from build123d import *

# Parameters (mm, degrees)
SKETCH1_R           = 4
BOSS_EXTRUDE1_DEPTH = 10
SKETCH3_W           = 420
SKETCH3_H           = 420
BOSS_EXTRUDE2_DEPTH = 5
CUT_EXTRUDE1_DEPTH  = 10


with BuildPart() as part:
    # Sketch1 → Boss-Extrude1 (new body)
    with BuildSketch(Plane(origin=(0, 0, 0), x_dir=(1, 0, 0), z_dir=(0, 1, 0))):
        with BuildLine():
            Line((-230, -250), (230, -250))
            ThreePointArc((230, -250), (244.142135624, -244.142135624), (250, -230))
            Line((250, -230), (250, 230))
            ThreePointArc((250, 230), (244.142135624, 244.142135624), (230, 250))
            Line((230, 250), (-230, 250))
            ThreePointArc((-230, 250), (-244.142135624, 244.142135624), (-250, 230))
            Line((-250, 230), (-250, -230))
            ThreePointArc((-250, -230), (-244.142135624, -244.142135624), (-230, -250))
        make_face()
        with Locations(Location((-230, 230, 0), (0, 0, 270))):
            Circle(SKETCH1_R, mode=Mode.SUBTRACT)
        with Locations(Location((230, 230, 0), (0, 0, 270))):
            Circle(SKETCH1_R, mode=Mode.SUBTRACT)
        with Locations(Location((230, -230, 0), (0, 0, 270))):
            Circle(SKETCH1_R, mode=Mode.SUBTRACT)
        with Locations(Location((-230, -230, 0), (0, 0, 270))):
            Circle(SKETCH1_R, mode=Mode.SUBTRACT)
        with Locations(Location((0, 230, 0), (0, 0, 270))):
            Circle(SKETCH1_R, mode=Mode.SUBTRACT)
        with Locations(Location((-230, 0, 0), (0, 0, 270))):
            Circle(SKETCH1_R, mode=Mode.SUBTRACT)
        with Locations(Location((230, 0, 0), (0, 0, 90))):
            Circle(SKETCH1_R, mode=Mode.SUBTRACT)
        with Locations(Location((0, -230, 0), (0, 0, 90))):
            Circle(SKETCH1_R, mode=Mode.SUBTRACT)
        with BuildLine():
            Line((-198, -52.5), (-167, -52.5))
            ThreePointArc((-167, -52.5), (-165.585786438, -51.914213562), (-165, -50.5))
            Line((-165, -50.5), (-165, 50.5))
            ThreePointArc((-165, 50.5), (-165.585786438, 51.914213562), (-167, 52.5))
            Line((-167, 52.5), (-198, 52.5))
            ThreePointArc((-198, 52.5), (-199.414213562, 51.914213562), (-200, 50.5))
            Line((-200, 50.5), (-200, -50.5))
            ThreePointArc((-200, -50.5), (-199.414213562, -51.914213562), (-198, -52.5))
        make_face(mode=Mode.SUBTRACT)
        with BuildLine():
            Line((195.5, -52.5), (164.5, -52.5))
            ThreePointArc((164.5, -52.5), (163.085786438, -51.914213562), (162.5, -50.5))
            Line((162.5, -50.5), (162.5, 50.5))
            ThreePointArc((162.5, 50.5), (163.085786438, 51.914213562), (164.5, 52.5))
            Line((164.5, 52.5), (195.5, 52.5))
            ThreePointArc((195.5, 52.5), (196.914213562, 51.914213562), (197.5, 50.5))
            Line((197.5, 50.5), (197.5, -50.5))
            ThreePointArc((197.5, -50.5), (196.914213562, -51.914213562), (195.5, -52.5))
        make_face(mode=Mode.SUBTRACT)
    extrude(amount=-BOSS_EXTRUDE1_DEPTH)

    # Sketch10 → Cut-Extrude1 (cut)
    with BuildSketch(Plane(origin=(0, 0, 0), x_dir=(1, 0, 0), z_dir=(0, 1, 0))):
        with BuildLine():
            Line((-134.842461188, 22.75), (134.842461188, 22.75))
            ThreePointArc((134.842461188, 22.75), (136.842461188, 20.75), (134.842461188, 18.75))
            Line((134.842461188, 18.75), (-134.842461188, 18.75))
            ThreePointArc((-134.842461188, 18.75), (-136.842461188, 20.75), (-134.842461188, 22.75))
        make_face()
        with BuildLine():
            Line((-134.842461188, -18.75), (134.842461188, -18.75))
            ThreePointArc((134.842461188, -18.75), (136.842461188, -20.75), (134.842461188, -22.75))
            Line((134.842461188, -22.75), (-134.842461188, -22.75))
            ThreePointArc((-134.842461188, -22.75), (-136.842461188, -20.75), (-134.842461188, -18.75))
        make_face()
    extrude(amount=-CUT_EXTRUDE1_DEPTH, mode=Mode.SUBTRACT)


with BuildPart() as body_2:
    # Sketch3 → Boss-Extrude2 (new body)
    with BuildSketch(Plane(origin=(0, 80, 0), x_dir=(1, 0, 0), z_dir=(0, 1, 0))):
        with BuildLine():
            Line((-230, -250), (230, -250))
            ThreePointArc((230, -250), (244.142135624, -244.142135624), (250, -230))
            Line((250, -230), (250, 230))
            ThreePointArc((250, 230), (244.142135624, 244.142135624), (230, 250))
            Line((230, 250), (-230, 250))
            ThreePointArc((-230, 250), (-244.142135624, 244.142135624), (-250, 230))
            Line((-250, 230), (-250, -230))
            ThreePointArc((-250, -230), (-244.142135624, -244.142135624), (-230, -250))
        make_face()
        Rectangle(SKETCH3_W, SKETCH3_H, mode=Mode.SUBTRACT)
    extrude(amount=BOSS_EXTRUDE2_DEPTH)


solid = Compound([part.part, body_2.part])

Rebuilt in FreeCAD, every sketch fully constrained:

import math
import FreeCAD as App
import Part
import Sketcher

V = App.Vector


def add_polygon(sketch, points):
    """Adds a closed chain of lines whose ends are joined by coincident constraints."""
    first, n = sketch.GeometryCount, len(points)
    for a, b in zip(points, points[1:] + points[:1]):
        sketch.addGeometry(Part.LineSegment(App.Vector(*a, 0), App.Vector(*b, 0)), False)
    for i in range(n):
        sketch.addConstraint(Sketcher.Constraint("Coincident", first + i, 2, first + (i + 1) % n, 1))

doc = App.newDocument("Part")
body = doc.addObject("PartDesign::Body", "Body")

sketch1 = body.newObject("Sketcher::SketchObject", "Sketch")
sketch1.AttachmentSupport = (doc.getObject("XZ_Plane"), [""])
sketch1.MapMode = "FlatFace"
sketch1.addGeometry([
    Part.LineSegment(V(-230, 250, 0), V(230, 250, 0)),
    Part.ArcOfCircle(Part.Circle(V(230, 230, 0), V(0, 0, 1), 20), math.radians(0), math.radians(90)),
    Part.LineSegment(V(250, 230, 0), V(250, -230, 0)),
    Part.ArcOfCircle(Part.Circle(V(230, -230, 0), V(0, 0, 1), 20), math.radians(-90), math.radians(0)),
    Part.LineSegment(V(230, -250, 0), V(-230, -250, 0)),
    Part.ArcOfCircle(Part.Circle(V(-230, -230, 0), V(0, 0, 1), 20), math.radians(180), math.radians(270)),
    Part.LineSegment(V(-250, -230, 0), V(-250, 230, 0)),
    Part.ArcOfCircle(Part.Circle(V(-230, 230, 0), V(0, 0, 1), 20), math.radians(90), math.radians(180)),
    Part.Circle(V(-230, 230, 0), V(0, 0, 1), 4),
    Part.Circle(V(0, 230, 0), V(0, 0, 1), 4),
    Part.Circle(V(230, 230, 0), V(0, 0, 1), 4),
    Part.Circle(V(-230, 0, 0), V(0, 0, 1), 4),
    Part.LineSegment(V(-167, 52.5, 0), V(-198, 52.5, 0)),
    Part.ArcOfCircle(Part.Circle(V(-198, 50.5, 0), V(0, 0, 1), 2), math.radians(90), math.radians(180)),
    Part.LineSegment(V(-200, 50.5, 0), V(-200, -50.5, 0)),
    Part.ArcOfCircle(Part.Circle(V(-198, -50.5, 0), V(0, 0, 1), 2), math.radians(-180), math.radians(-90)),
    Part.LineSegment(V(-198, -52.5, 0), V(-167, -52.5, 0)),
    Part.ArcOfCircle(Part.Circle(V(-167, -50.5, 0), V(0, 0, 1), 2), math.radians(-90), math.radians(0)),
    Part.LineSegment(V(-165, -50.5, 0), V(-165, 50.5, 0)),
    Part.ArcOfCircle(Part.Circle(V(-167, 50.5, 0), V(0, 0, 1), 2), math.radians(0), math.radians(90)),
    Part.Circle(V(-230, -230, 0), V(0, 0, 1), 4),
    Part.ArcOfCircle(Part.Circle(V(195.5, 50.5, 0), V(0, 0, 1), 2), math.radians(0), math.radians(90)),
    Part.LineSegment(V(195.5, 52.5, 0), V(164.5, 52.5, 0)),
    Part.ArcOfCircle(Part.Circle(V(164.5, 50.5, 0), V(0, 0, 1), 2), math.radians(90), math.radians(180)),
    Part.LineSegment(V(162.5, 50.5, 0), V(162.5, -50.5, 0)),
    Part.ArcOfCircle(Part.Circle(V(164.5, -50.5, 0), V(0, 0, 1), 2), math.radians(-180), math.radians(-90)),
    Part.LineSegment(V(164.5, -52.5, 0), V(195.5, -52.5, 0)),
    Part.ArcOfCircle(Part.Circle(V(195.5, -50.5, 0), V(0, 0, 1), 2), math.radians(-90), math.radians(0)),
    Part.LineSegment(V(197.5, -50.5, 0), V(197.5, 50.5, 0)),
    Part.Circle(V(230, 0, 0), V(0, 0, 1), 4),
    Part.Circle(V(0, -230, 0), V(0, 0, 1), 4),
    Part.Circle(V(230, -230, 0), V(0, 0, 1), 4),
], False)
sketch1.addConstraint([
    Sketcher.Constraint("Tangent", 0, 2, 1, 2),
    Sketcher.Constraint("Tangent", 1, 1, 2, 1),
    Sketcher.Constraint("Tangent", 2, 2, 3, 2),
    Sketcher.Constraint("Tangent", 3, 1, 4, 1),
    Sketcher.Constraint("Tangent", 4, 2, 5, 2),
    Sketcher.Constraint("Tangent", 5, 1, 6, 1),
    Sketcher.Constraint("Tangent", 6, 2, 7, 2),
    Sketcher.Constraint("Tangent", 7, 1, 0, 1),
    Sketcher.Constraint("Tangent", 12, 2, 13, 1),
    Sketcher.Constraint("Tangent", 13, 2, 14, 1),
    Sketcher.Constraint("Tangent", 14, 2, 15, 1),
    Sketcher.Constraint("Tangent", 15, 2, 16, 1),
    Sketcher.Constraint("Tangent", 16, 2, 17, 1),
    Sketcher.Constraint("Tangent", 17, 2, 18, 1),
    Sketcher.Constraint("Tangent", 18, 2, 19, 1),
    Sketcher.Constraint("Tangent", 19, 2, 12, 1),
    Sketcher.Constraint("Tangent", 21, 2, 22, 1),
    Sketcher.Constraint("Tangent", 22, 2, 23, 1),
    Sketcher.Constraint("Tangent", 23, 2, 24, 1),
    Sketcher.Constraint("Tangent", 24, 2, 25, 1),
    Sketcher.Constraint("Tangent", 25, 2, 26, 1),
    Sketcher.Constraint("Tangent", 26, 2, 27, 1),
    Sketcher.Constraint("Tangent", 27, 2, 28, 1),
    Sketcher.Constraint("Tangent", 28, 2, 21, 1),
    Sketcher.Constraint("Horizontal", 0),
    Sketcher.Constraint("Vertical", 2),
    Sketcher.Constraint("Horizontal", 4),
    Sketcher.Constraint("Vertical", 6),
    Sketcher.Constraint("Horizontal", 12),
    Sketcher.Constraint("Vertical", 14),
    Sketcher.Constraint("Horizontal", 16),
    Sketcher.Constraint("Vertical", 18),
    Sketcher.Constraint("Horizontal", 22),
    Sketcher.Constraint("Vertical", 24),
    Sketcher.Constraint("Horizontal", 26),
    Sketcher.Constraint("Vertical", 28),
    Sketcher.Constraint("Coincident", 8, 3, 7, 3),
    Sketcher.Constraint("Coincident", 10, 3, 1, 3),
    Sketcher.Constraint("Coincident", 20, 3, 5, 3),
    Sketcher.Constraint("Coincident", 31, 3, 3, 3),
    Sketcher.Constraint("Equal", 1, 3),
    Sketcher.Constraint("Equal", 3, 5),
    Sketcher.Constraint("Equal", 5, 7),
    Sketcher.Constraint("Equal", 8, 9),
    Sketcher.Constraint("Equal", 9, 10),
    Sketcher.Constraint("Equal", 10, 11),
    Sketcher.Constraint("Equal", 13, 15),
    Sketcher.Constraint("Equal", 15, 17),
    Sketcher.Constraint("Equal", 17, 19),
    Sketcher.Constraint("Equal", 11, 20),
    Sketcher.Constraint("Equal", 19, 21),
    Sketcher.Constraint("Equal", 21, 23),
    Sketcher.Constraint("Equal", 23, 25),
    Sketcher.Constraint("Equal", 25, 27),
    Sketcher.Constraint("Equal", 20, 29),
    Sketcher.Constraint("Equal", 29, 30),
    Sketcher.Constraint("Equal", 30, 31),
    Sketcher.Constraint("Symmetric", 1, 3, 5, 3, -1, 1),
    Sketcher.Constraint("Symmetric", 11, 3, 29, 3, -1, 1),
    Sketcher.Constraint("Symmetric", 9, 3, 30, 3, -1, 1),
    Sketcher.Constraint("PointOnObject", 9, 3, -2),
    Sketcher.Constraint("PointOnObject", 11, 3, -1),
    Sketcher.Constraint("Horizontal", 8, 3, 9, 3),
    Sketcher.Constraint("Horizontal", 19, 3, 21, 3),
    Sketcher.Constraint("Horizontal", 17, 3, 25, 3),
    Sketcher.Constraint("Vertical", 8, 3, 11, 3),
    Sketcher.Constraint("Equal", 16, 22),
    Sketcher.Constraint("Equal", 4, 2),
    Sketcher.Constraint("Diameter", 8, 8.0),
    Sketcher.Constraint("Radius", 1, 20.0),
    Sketcher.Constraint("Radius", 13, 2.0),
    Sketcher.Constraint("DistanceX", 0, 1, 0, 2, 460.0),
    Sketcher.Constraint("DistanceX", 12, 2, 12, 1, 31.0),
    Sketcher.Constraint("DistanceY", 14, 2, 14, 1, 101.0),
    Sketcher.Constraint("DistanceX", 13, 3, -1, 1, 198.0),
    Sketcher.Constraint("DistanceY", -1, 1, 13, 3, 50.5),
    Sketcher.Constraint("DistanceX", -1, 1, 21, 3, 195.5),
])
pad1 = body.newObject("PartDesign::Pad", "Pad")
pad1.Profile = sketch1
pad1.Length = 10

sketch2 = body.newObject("Sketcher::SketchObject", "Sketch001")
sketch2.AttachmentSupport = (doc.getObject("XZ_Plane"), [""])
sketch2.MapMode = "FlatFace"
sketch2.addGeometry([
    Part.LineSegment(V(134.8, -22.8, 0), V(-134.8, -22.8, 0)),
    Part.ArcOfCircle(Part.Circle(V(-134.8, -20.8, 0), V(0, 0, 1), 2), math.radians(90), math.radians(270)),
    Part.LineSegment(V(-134.8, -18.8, 0), V(134.8, -18.8, 0)),
    Part.ArcOfCircle(Part.Circle(V(134.8, -20.8, 0), V(0, 0, 1), 2), math.radians(-90), math.radians(90)),
    Part.LineSegment(V(134.8, 18.8, 0), V(-134.8, 18.8, 0)),
    Part.ArcOfCircle(Part.Circle(V(-134.8, 20.8, 0), V(0, 0, 1), 2), math.radians(90), math.radians(270)),
    Part.LineSegment(V(-134.8, 22.8, 0), V(134.8, 22.8, 0)),
    Part.ArcOfCircle(Part.Circle(V(134.8, 20.8, 0), V(0, 0, 1), 2), math.radians(-90), math.radians(90)),
], False)
sketch2.addConstraint([
    Sketcher.Constraint("Tangent", 0, 2, 1, 2),
    Sketcher.Constraint("Tangent", 1, 1, 2, 1),
    Sketcher.Constraint("Tangent", 2, 2, 3, 2),
    Sketcher.Constraint("Tangent", 3, 1, 0, 1),
    Sketcher.Constraint("Tangent", 4, 2, 5, 2),
    Sketcher.Constraint("Tangent", 5, 1, 6, 1),
    Sketcher.Constraint("Tangent", 6, 2, 7, 2),
    Sketcher.Constraint("Tangent", 7, 1, 4, 1),
    Sketcher.Constraint("Horizontal", 0),
    Sketcher.Constraint("Horizontal", 2),
    Sketcher.Constraint("Horizontal", 4),
    Sketcher.Constraint("Horizontal", 6),
    Sketcher.Constraint("Equal", 3, 5),
    Sketcher.Constraint("Symmetric", 3, 3, 5, 3, -1, 1),
    Sketcher.Constraint("Vertical", 1, 3, 5, 3),
    Sketcher.Constraint("Vertical", 3, 3, 7, 3),
    Sketcher.Constraint("Radius", 1, 2.0),
    Sketcher.Constraint("DistanceY", 1, 3, 5, 3, 41.5),
    Sketcher.Constraint("DistanceX", 0, 2, 0, 1, 269.684922),
])
pocket1 = body.newObject("PartDesign::Pocket", "Pocket")
pocket1.Profile = sketch2
pocket1.Length = 10
pocket1.Reversed = True
body2 = doc.addObject("PartDesign::Body", "Body001")

sketch3 = body2.newObject("Sketcher::SketchObject", "Sketch002")
sketch3.AttachmentSupport = (doc.getObject("XZ_Plane001"), [""])
sketch3.MapMode = "FlatFace"
sketch3.AttachmentOffset = App.Placement(V(0, 0, -80), App.Rotation())
sketch3.addGeometry(Part.LineSegment(V(-230, 250, 0), V(230, 250, 0)), False)
sketch3.addGeometry(Part.ArcOfCircle(Part.Circle(V(230, 230, 0), V(0, 0, 1), 20), math.radians(0), math.radians(90)), False)
sketch3.addGeometry(Part.LineSegment(V(250, 230, 0), V(250, -230, 0)), False)
sketch3.addGeometry(Part.ArcOfCircle(Part.Circle(V(230, -230, 0), V(0, 0, 1), 20), math.radians(-90), math.radians(0)), False)
sketch3.addGeometry(Part.LineSegment(V(230, -250, 0), V(-230, -250, 0)), False)
sketch3.addGeometry(Part.ArcOfCircle(Part.Circle(V(-230, -230, 0), V(0, 0, 1), 20), math.radians(180), math.radians(270)), False)
sketch3.addGeometry(Part.LineSegment(V(-250, -230, 0), V(-250, 230, 0)), False)
sketch3.addGeometry(Part.ArcOfCircle(Part.Circle(V(-230, 230, 0), V(0, 0, 1), 20), math.radians(90), math.radians(180)), False)
add_polygon(sketch3, [(210, 210), (-210, 210), (-210, -210), (210, -210)])
sketch3.addConstraint([
    Sketcher.Constraint("Tangent", 0, 2, 1, 2),
    Sketcher.Constraint("Tangent", 1, 1, 2, 1),
    Sketcher.Constraint("Tangent", 2, 2, 3, 2),
    Sketcher.Constraint("Tangent", 3, 1, 4, 1),
    Sketcher.Constraint("Tangent", 4, 2, 5, 2),
    Sketcher.Constraint("Tangent", 5, 1, 6, 1),
    Sketcher.Constraint("Tangent", 6, 2, 7, 2),
    Sketcher.Constraint("Tangent", 7, 1, 0, 1),
    Sketcher.Constraint("Horizontal", 0),
    Sketcher.Constraint("Vertical", 2),
    Sketcher.Constraint("Horizontal", 4),
    Sketcher.Constraint("Vertical", 6),
    Sketcher.Constraint("Horizontal", 8),
    Sketcher.Constraint("Vertical", 9),
    Sketcher.Constraint("Horizontal", 10),
    Sketcher.Constraint("Vertical", 11),
    Sketcher.Constraint("Equal", 1, 3),
    Sketcher.Constraint("Equal", 3, 5),
    Sketcher.Constraint("Equal", 5, 7),
    Sketcher.Constraint("Symmetric", 1, 3, 5, 3, -1, 1),
    Sketcher.Constraint("Symmetric", 8, 2, 10, 2, -1, 1),
    Sketcher.Constraint("Equal", 4, 2),
    Sketcher.Constraint("Equal", 10, 9),
    Sketcher.Constraint("Radius", 1, 20.0),
    Sketcher.Constraint("DistanceX", 0, 1, 0, 2, 460.0),
    Sketcher.Constraint("DistanceX", 8, 2, 8, 1, 420.0),
])
pad2 = body2.newObject("PartDesign::Pad", "Pad001")
pad2.Profile = sketch3
pad2.Length = 5
pad2.Reversed = True

doc.recompute()
